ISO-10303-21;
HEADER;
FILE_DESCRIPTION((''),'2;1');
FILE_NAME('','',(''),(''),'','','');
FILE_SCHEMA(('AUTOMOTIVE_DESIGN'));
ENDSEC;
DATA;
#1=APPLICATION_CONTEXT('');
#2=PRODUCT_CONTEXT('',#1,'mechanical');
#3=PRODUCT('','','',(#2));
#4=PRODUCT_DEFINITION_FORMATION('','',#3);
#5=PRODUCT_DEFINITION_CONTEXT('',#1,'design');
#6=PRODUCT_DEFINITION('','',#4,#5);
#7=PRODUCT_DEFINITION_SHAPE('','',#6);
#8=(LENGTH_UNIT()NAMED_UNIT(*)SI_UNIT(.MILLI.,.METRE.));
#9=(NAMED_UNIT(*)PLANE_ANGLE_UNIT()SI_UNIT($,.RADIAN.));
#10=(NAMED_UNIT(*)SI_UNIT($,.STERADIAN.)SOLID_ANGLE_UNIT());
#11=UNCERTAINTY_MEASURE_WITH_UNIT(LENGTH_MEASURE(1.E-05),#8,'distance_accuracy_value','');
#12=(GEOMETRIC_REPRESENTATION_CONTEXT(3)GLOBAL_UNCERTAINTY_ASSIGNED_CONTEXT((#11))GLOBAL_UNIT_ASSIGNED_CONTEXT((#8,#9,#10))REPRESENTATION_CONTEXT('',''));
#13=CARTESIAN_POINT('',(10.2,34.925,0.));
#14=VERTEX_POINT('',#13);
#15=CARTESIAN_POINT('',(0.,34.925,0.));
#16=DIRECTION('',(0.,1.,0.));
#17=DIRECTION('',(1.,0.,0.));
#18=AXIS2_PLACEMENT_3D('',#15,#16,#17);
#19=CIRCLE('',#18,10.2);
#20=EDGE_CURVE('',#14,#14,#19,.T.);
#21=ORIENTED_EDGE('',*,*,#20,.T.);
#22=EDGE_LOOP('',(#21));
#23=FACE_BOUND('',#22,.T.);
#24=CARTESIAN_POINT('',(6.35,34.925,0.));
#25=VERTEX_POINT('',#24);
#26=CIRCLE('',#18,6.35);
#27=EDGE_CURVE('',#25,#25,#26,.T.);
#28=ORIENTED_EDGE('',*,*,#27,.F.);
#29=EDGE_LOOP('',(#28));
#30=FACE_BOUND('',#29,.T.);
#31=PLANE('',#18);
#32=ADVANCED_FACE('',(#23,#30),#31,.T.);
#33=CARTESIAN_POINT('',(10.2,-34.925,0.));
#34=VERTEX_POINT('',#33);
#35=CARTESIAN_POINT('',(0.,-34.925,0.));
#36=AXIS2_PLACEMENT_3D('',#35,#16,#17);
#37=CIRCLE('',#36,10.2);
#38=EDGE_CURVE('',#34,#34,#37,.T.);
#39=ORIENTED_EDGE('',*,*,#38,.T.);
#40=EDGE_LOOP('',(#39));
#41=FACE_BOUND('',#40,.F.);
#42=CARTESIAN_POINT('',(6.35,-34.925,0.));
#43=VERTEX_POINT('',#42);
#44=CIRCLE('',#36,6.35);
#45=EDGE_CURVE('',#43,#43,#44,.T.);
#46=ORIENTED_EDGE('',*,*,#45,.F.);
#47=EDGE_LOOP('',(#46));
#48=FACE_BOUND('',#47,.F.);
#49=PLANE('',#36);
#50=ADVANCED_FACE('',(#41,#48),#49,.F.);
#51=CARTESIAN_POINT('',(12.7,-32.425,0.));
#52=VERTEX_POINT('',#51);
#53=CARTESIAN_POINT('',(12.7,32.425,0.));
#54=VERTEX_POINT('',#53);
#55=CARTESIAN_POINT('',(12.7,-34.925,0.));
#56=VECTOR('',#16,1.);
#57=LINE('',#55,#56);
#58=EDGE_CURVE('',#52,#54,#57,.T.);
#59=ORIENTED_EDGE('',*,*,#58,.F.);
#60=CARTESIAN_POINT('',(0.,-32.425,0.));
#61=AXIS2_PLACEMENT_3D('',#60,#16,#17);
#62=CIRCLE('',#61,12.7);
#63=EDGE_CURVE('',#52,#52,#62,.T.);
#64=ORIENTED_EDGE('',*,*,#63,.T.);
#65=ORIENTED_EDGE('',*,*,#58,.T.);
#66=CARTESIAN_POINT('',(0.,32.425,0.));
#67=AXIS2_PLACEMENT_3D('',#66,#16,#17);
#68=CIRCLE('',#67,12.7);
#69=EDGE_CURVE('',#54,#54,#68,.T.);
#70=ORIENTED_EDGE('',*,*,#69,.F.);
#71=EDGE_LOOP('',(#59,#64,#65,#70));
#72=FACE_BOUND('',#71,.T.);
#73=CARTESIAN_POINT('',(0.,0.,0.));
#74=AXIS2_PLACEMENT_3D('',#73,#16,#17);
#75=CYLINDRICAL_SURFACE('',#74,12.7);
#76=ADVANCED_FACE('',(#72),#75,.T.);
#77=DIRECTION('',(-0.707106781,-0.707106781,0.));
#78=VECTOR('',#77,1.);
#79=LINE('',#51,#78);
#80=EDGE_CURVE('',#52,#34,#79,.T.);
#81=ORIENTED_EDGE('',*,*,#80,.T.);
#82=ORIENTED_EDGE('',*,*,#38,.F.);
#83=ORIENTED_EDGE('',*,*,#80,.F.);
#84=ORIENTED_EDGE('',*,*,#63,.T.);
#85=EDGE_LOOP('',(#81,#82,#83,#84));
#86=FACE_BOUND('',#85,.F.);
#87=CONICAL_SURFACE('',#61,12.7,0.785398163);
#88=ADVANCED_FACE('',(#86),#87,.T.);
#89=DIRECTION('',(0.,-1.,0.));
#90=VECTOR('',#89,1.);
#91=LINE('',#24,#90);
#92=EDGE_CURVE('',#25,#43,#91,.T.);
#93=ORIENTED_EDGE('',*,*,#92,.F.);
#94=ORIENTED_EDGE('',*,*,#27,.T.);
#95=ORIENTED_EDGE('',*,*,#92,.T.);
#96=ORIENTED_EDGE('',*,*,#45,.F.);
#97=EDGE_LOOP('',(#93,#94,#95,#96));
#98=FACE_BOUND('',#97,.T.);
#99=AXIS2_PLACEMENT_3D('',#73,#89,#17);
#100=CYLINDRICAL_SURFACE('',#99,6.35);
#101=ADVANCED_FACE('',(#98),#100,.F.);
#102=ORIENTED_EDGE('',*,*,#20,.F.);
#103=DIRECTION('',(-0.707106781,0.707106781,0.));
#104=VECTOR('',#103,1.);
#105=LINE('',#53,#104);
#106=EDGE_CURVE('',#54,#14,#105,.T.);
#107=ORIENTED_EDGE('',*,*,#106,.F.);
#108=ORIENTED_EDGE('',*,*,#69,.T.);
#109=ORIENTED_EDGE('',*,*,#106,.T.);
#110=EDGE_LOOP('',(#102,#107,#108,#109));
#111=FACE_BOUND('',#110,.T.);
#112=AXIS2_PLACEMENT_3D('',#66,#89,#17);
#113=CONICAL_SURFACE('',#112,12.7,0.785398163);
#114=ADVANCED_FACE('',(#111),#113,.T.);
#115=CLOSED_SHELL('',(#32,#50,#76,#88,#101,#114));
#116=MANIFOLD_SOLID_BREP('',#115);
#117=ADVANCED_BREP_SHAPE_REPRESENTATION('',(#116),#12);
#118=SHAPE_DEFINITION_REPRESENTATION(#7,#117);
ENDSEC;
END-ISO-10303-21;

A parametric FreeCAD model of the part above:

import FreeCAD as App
import Part
import Sketcher

V = App.Vector
Q = App.Units.Quantity


def edges_at(feature, points):
    """Names of the edges that pass closest to the given points."""
    edges = feature.Shape.Edges
    near = lambda p: min(range(len(edges)), key=lambda i: edges[i].distToShape(Part.Vertex(*p))[0])
    return sorted({f"Edge{near(p) + 1}" for p in points})

doc = App.newDocument("Part")
body = doc.addObject("PartDesign::Body", "Body")

sketch1 = body.newObject("Sketcher::SketchObject", "Sketch")
sketch1.AttachmentSupport = (doc.getObject("XZ_Plane"), [""])
sketch1.MapMode = "FlatFace"
sketch1.addGeometry([
    Part.Circle(V(0, 0, 0), V(0, 0, 1), 12.7),
    Part.Circle(V(0, 0, 0), V(0, 0, 1), 6.35),
], False)
sketch1.addConstraint([
    Sketcher.Constraint("Coincident", 0, 3, -1, 1),
    Sketcher.Constraint("Coincident", 1, 3, -1, 1),
    Sketcher.Constraint("Diameter", 0, Q("1 in")),
    Sketcher.Constraint("Diameter", 1, Q("0.5 in")),
])
pad1 = body.newObject("PartDesign::Pad", "Pad")
pad1.Profile = sketch1
pad1.Length = Q("2.75 in")
pad1.Midplane = True
doc.recompute()

chamfer = body.newObject("PartDesign::Chamfer", "Chamfer")
chamfer.Base = (pad1, edges_at(pad1, [(-12.7, -34.925, 0), (-12.7, 34.925, 0)]))
chamfer.Size = 2.5

doc.recompute()
